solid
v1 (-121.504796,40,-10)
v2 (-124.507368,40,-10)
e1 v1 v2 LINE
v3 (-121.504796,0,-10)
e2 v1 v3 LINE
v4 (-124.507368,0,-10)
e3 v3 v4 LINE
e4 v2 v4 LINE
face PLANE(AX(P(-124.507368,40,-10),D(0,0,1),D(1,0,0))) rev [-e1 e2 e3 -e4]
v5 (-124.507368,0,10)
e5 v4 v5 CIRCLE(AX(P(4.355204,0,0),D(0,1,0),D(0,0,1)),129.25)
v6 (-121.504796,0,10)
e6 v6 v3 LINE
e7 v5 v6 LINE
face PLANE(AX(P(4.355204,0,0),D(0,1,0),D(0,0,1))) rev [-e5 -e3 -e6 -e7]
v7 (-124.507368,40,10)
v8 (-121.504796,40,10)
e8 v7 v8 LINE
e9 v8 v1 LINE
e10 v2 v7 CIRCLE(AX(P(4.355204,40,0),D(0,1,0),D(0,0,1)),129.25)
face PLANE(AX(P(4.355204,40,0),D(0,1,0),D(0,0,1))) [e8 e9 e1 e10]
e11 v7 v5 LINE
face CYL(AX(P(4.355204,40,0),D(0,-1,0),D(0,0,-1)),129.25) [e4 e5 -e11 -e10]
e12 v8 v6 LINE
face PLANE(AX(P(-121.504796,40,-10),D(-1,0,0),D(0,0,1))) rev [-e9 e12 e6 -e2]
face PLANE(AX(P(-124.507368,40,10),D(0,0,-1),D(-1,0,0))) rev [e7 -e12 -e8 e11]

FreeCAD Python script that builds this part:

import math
import FreeCAD as App
import Part
import Sketcher
from FreeCAD import Vector

doc = App.newDocument("Part")
params = doc.addObject("Spreadsheet::Sheet", "Params")
for row, (alias, value) in enumerate([
    ("sketch1_height", "20 mm"),
    ("sketch1_radius", "129.25 mm"),
    ("pad1_length", "40 mm"),
], start=1):
    params.set(f"A{row}", alias)
    params.set(f"B{row}", "=" + value)
    params.setAlias(f"B{row}", alias)

body = doc.addObject("PartDesign::Body", "Body")

# Sketch on XZ plane
sketch1 = body.newObject("Sketcher::SketchObject", "Sketch")
sketch1.AttachmentSupport = (doc.getObject("XZ_Plane"), [""])
sketch1.MapMode = "FlatFace"
sketch1.addGeometry([
    Part.LineSegment(Vector(-121.5, -10, 0), Vector(-124.5, -10, 0)),
    Part.ArcOfCircle(Part.Circle(Vector(4.4, 0, 0), Vector(0, 0, 1), 129.3), math.radians(175.56), math.radians(184.44)),
    Part.LineSegment(Vector(-124.5, 10, 0), Vector(-121.5, 10, 0)),
    Part.LineSegment(Vector(-121.5, 10, 0), Vector(-121.5, -10, 0)),
], False)
sketch1.addConstraint([
    Sketcher.Constraint("Coincident", 0, 2, 1, 2),
    Sketcher.Constraint("Coincident", 1, 1, 2, 1),
    Sketcher.Constraint("Coincident", 2, 2, 3, 1),
    Sketcher.Constraint("Coincident", 3, 2, 0, 1),
    Sketcher.Constraint("Horizontal", 0),
    Sketcher.Constraint("Horizontal", 2),
    Sketcher.Constraint("Vertical", 3),
    Sketcher.Constraint("Symmetric", 0, 2, 1, 1, -1),
    Sketcher.Constraint("DistanceY", 3, 2, 3, 1, 20.0),
    Sketcher.Constraint("Radius", 1, 129.25),
    Sketcher.Constraint("DistanceX", 2, 2, 1, 3, 125.86),
    Sketcher.Constraint("DistanceX", -1, 1, 1, 3, 4.355204),
])
sketch1.setExpression("Constraints[8]", "Params.sketch1_height")
sketch1.setExpression("Constraints[9]", "Params.sketch1_radius")
pad1 = body.newObject("PartDesign::Pad", "Pad")
pad1.Profile = sketch1
pad1.setExpression("Length", "Params.pad1_length")
pad1.Reversed = True

doc.recompute()
